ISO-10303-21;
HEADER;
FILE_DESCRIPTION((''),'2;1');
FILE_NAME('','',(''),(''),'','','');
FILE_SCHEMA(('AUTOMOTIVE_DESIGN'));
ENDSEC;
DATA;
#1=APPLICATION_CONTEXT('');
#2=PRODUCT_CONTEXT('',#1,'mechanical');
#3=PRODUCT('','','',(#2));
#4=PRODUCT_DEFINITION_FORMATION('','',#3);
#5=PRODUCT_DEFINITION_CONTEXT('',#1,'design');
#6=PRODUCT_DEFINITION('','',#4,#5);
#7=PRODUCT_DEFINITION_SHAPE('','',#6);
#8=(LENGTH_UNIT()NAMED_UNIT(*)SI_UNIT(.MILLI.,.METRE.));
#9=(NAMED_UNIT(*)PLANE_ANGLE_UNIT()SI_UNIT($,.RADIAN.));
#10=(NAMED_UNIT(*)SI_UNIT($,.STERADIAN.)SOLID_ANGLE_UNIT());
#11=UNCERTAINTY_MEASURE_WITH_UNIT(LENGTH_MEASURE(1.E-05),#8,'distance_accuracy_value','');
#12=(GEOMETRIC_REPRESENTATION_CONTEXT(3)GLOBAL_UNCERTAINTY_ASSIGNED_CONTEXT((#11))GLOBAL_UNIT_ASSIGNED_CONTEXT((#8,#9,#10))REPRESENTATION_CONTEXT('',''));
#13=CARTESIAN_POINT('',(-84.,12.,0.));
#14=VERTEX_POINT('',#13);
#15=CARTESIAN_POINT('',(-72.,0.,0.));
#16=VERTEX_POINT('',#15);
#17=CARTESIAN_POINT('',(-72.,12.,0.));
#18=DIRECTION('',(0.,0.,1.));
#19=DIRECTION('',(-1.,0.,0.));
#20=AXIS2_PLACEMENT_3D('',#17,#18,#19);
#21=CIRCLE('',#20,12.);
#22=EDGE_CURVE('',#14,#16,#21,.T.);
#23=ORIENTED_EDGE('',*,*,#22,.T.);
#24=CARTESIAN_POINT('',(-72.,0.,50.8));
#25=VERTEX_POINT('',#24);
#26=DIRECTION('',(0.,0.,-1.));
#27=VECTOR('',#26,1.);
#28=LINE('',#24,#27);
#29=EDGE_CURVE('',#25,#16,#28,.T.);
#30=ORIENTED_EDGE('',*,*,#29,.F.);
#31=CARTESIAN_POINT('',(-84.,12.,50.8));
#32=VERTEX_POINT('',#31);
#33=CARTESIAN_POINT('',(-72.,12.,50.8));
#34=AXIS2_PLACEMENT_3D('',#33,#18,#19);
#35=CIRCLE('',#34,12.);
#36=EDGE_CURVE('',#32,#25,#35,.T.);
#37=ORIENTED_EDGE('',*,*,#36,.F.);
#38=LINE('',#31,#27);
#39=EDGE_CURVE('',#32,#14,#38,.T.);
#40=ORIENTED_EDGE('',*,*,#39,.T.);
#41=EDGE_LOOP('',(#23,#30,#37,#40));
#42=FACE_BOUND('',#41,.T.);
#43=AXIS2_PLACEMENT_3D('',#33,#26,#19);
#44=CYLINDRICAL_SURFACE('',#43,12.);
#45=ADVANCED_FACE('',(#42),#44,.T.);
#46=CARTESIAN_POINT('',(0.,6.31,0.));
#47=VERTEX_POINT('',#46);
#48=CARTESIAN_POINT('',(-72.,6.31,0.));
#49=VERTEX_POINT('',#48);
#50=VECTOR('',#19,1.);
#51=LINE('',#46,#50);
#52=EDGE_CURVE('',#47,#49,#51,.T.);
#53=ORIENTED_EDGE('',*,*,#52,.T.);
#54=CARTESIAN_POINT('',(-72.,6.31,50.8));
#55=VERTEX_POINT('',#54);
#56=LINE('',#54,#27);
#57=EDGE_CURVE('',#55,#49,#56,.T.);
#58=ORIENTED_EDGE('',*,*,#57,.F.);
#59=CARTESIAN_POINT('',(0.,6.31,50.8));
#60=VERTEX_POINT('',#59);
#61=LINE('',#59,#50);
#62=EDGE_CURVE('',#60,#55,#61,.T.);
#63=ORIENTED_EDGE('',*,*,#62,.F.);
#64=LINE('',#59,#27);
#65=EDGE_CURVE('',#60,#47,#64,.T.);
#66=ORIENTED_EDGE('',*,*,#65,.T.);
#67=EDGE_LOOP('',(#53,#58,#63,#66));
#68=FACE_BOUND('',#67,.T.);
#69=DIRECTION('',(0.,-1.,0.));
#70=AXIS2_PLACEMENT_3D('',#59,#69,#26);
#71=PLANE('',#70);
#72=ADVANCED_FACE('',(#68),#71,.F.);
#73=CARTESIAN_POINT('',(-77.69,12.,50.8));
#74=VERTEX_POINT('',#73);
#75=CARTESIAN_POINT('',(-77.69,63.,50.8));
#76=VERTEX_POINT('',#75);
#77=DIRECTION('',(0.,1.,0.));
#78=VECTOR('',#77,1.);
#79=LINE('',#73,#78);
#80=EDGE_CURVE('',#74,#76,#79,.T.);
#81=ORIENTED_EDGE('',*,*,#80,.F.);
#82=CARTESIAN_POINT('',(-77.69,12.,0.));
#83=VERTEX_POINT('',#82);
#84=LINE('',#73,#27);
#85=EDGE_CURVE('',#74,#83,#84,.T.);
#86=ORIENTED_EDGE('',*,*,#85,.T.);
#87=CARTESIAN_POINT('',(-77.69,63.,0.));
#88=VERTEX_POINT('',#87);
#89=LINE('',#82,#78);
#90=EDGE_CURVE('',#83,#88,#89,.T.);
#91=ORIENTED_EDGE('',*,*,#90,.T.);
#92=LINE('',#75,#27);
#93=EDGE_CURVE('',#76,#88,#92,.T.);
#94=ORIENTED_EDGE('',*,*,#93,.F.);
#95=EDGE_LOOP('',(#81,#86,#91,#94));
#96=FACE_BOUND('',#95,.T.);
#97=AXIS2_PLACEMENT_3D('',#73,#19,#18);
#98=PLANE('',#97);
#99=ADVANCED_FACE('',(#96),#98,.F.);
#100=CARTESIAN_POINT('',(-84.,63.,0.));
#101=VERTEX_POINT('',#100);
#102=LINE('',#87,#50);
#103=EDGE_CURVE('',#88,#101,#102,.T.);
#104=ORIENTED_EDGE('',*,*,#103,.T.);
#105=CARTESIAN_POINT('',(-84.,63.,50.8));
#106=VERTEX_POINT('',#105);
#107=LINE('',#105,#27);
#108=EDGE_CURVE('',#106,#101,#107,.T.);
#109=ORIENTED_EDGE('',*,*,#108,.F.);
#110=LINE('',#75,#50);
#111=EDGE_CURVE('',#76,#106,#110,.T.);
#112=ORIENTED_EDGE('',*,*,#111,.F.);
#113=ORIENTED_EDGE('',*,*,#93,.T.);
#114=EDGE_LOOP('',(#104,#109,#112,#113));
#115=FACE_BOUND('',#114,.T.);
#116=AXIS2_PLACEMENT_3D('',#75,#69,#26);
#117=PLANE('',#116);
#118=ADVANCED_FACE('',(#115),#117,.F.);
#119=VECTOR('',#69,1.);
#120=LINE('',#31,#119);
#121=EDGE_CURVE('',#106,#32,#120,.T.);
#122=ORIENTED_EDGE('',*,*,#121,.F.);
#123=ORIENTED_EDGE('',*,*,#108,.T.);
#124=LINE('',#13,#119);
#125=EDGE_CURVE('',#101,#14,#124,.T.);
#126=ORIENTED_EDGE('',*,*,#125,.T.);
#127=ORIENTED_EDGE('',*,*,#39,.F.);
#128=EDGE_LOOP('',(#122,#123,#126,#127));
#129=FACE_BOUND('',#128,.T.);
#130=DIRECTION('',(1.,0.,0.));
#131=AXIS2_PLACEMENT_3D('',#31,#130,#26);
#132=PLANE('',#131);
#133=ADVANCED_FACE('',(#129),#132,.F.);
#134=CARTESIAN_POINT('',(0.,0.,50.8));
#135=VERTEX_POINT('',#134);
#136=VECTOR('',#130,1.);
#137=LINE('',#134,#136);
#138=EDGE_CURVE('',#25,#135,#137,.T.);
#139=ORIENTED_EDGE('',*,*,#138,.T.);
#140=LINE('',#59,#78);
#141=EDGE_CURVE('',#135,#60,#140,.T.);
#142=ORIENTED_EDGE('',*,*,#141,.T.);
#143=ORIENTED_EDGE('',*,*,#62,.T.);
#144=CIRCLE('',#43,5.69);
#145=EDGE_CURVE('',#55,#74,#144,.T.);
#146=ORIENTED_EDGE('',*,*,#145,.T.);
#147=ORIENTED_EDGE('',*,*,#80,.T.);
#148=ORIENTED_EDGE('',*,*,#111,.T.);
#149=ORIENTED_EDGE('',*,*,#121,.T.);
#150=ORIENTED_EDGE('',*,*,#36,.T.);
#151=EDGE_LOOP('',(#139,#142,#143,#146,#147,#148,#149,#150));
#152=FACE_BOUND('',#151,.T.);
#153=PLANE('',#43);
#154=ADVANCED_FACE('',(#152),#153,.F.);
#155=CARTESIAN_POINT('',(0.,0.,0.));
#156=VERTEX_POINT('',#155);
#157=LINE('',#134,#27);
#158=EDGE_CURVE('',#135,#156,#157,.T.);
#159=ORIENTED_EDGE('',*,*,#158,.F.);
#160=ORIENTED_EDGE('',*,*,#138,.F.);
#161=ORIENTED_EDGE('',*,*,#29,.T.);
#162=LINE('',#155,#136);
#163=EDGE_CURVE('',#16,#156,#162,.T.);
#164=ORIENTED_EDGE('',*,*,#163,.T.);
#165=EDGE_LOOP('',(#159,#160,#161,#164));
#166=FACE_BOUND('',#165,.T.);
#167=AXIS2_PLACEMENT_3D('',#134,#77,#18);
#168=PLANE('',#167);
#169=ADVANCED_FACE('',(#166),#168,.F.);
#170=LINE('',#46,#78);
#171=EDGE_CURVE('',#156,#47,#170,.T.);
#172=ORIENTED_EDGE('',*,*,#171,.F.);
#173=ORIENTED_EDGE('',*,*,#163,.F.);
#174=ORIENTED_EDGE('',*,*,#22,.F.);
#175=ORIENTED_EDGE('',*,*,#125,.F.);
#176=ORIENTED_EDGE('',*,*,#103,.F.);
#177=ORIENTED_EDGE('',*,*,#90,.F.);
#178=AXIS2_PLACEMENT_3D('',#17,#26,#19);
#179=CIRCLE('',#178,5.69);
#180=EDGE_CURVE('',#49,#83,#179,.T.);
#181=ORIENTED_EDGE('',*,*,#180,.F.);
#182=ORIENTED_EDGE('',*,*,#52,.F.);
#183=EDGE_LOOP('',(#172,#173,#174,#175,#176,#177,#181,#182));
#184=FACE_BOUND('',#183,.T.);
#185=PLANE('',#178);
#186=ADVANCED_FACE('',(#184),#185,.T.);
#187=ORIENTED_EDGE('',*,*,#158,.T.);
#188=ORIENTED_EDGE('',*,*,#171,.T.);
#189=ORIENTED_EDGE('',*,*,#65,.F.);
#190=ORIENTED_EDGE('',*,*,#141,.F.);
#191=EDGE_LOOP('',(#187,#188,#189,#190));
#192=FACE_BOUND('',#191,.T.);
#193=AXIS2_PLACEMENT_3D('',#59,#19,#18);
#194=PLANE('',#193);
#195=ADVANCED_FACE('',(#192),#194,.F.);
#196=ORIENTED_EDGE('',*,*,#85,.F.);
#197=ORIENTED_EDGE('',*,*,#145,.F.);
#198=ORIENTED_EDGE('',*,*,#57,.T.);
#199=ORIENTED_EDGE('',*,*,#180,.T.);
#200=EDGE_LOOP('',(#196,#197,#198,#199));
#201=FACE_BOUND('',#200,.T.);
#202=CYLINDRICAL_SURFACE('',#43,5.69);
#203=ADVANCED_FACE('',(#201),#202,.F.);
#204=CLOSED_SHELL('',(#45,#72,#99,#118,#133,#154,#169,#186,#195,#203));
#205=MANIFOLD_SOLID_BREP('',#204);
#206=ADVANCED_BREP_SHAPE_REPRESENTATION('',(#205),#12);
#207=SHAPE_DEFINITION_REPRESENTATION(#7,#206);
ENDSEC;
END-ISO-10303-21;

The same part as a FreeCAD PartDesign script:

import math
import FreeCAD as App
import Part
import Sketcher

doc = App.newDocument("Part")
body = doc.addObject("PartDesign::Body", "Body")

sketch1 = body.newObject("Sketcher::SketchObject", "Sketch")
sketch1.AttachmentSupport = (doc.getObject("XY_Plane"), [""])
sketch1.MapMode = "FlatFace"
sketch1.addGeometry([
    Part.LineSegment(App.Vector(-72, 0, 0), App.Vector(0, 0, 0)),
    Part.LineSegment(App.Vector(0, 0, 0), App.Vector(0, 6, 0)),
    Part.LineSegment(App.Vector(0, 6, 0), App.Vector(-72, 6, 0)),
    Part.ArcOfCircle(Part.Circle(App.Vector(-72, 12, 0), App.Vector(0, 0, 1), 6), math.radians(180), math.radians(270)),
    Part.LineSegment(App.Vector(-78, 12, 0), App.Vector(-78, 63, 0)),
    Part.LineSegment(App.Vector(-78, 63, 0), App.Vector(-84, 63, 0)),
    Part.LineSegment(App.Vector(-84, 63, 0), App.Vector(-84, 12, 0)),
    Part.ArcOfCircle(Part.Circle(App.Vector(-72, 12, 0), App.Vector(0, 0, 1), 12), math.radians(-180), math.radians(-90)),
], False)
sketch1.addConstraint([
    Sketcher.Constraint("Coincident", 0, 2, 1, 1),
    Sketcher.Constraint("Coincident", 1, 2, 2, 1),
    Sketcher.Constraint("Tangent", 2, 2, 3, 2),
    Sketcher.Constraint("Tangent", 3, 1, 4, 1),
    Sketcher.Constraint("Coincident", 4, 2, 5, 1),
    Sketcher.Constraint("Coincident", 5, 2, 6, 1),
    Sketcher.Constraint("Tangent", 6, 2, 7, 1),
    Sketcher.Constraint("Tangent", 7, 2, 0, 1),
    Sketcher.Constraint("Horizontal", 0),
    Sketcher.Constraint("Vertical", 1),
    Sketcher.Constraint("Horizontal", 2),
    Sketcher.Constraint("Vertical", 4),
    Sketcher.Constraint("Horizontal", 5),
    Sketcher.Constraint("Vertical", 6),
    Sketcher.Constraint("Coincident", 0, 2, -1, 1),
    Sketcher.Constraint("Coincident", 7, 3, 3, 3),
    Sketcher.Constraint("Radius", 7, 12.0),
    Sketcher.Constraint("DistanceX", 0, 1, 0, 2, 72.0),
    Sketcher.Constraint("DistanceY", 4, 1, 4, 2, 51.0),
    Sketcher.Constraint("Radius", 3, 5.69),
])
pad1 = body.newObject("PartDesign::Pad", "Pad")
pad1.Profile = sketch1
pad1.Length = 50.8

doc.recompute()
